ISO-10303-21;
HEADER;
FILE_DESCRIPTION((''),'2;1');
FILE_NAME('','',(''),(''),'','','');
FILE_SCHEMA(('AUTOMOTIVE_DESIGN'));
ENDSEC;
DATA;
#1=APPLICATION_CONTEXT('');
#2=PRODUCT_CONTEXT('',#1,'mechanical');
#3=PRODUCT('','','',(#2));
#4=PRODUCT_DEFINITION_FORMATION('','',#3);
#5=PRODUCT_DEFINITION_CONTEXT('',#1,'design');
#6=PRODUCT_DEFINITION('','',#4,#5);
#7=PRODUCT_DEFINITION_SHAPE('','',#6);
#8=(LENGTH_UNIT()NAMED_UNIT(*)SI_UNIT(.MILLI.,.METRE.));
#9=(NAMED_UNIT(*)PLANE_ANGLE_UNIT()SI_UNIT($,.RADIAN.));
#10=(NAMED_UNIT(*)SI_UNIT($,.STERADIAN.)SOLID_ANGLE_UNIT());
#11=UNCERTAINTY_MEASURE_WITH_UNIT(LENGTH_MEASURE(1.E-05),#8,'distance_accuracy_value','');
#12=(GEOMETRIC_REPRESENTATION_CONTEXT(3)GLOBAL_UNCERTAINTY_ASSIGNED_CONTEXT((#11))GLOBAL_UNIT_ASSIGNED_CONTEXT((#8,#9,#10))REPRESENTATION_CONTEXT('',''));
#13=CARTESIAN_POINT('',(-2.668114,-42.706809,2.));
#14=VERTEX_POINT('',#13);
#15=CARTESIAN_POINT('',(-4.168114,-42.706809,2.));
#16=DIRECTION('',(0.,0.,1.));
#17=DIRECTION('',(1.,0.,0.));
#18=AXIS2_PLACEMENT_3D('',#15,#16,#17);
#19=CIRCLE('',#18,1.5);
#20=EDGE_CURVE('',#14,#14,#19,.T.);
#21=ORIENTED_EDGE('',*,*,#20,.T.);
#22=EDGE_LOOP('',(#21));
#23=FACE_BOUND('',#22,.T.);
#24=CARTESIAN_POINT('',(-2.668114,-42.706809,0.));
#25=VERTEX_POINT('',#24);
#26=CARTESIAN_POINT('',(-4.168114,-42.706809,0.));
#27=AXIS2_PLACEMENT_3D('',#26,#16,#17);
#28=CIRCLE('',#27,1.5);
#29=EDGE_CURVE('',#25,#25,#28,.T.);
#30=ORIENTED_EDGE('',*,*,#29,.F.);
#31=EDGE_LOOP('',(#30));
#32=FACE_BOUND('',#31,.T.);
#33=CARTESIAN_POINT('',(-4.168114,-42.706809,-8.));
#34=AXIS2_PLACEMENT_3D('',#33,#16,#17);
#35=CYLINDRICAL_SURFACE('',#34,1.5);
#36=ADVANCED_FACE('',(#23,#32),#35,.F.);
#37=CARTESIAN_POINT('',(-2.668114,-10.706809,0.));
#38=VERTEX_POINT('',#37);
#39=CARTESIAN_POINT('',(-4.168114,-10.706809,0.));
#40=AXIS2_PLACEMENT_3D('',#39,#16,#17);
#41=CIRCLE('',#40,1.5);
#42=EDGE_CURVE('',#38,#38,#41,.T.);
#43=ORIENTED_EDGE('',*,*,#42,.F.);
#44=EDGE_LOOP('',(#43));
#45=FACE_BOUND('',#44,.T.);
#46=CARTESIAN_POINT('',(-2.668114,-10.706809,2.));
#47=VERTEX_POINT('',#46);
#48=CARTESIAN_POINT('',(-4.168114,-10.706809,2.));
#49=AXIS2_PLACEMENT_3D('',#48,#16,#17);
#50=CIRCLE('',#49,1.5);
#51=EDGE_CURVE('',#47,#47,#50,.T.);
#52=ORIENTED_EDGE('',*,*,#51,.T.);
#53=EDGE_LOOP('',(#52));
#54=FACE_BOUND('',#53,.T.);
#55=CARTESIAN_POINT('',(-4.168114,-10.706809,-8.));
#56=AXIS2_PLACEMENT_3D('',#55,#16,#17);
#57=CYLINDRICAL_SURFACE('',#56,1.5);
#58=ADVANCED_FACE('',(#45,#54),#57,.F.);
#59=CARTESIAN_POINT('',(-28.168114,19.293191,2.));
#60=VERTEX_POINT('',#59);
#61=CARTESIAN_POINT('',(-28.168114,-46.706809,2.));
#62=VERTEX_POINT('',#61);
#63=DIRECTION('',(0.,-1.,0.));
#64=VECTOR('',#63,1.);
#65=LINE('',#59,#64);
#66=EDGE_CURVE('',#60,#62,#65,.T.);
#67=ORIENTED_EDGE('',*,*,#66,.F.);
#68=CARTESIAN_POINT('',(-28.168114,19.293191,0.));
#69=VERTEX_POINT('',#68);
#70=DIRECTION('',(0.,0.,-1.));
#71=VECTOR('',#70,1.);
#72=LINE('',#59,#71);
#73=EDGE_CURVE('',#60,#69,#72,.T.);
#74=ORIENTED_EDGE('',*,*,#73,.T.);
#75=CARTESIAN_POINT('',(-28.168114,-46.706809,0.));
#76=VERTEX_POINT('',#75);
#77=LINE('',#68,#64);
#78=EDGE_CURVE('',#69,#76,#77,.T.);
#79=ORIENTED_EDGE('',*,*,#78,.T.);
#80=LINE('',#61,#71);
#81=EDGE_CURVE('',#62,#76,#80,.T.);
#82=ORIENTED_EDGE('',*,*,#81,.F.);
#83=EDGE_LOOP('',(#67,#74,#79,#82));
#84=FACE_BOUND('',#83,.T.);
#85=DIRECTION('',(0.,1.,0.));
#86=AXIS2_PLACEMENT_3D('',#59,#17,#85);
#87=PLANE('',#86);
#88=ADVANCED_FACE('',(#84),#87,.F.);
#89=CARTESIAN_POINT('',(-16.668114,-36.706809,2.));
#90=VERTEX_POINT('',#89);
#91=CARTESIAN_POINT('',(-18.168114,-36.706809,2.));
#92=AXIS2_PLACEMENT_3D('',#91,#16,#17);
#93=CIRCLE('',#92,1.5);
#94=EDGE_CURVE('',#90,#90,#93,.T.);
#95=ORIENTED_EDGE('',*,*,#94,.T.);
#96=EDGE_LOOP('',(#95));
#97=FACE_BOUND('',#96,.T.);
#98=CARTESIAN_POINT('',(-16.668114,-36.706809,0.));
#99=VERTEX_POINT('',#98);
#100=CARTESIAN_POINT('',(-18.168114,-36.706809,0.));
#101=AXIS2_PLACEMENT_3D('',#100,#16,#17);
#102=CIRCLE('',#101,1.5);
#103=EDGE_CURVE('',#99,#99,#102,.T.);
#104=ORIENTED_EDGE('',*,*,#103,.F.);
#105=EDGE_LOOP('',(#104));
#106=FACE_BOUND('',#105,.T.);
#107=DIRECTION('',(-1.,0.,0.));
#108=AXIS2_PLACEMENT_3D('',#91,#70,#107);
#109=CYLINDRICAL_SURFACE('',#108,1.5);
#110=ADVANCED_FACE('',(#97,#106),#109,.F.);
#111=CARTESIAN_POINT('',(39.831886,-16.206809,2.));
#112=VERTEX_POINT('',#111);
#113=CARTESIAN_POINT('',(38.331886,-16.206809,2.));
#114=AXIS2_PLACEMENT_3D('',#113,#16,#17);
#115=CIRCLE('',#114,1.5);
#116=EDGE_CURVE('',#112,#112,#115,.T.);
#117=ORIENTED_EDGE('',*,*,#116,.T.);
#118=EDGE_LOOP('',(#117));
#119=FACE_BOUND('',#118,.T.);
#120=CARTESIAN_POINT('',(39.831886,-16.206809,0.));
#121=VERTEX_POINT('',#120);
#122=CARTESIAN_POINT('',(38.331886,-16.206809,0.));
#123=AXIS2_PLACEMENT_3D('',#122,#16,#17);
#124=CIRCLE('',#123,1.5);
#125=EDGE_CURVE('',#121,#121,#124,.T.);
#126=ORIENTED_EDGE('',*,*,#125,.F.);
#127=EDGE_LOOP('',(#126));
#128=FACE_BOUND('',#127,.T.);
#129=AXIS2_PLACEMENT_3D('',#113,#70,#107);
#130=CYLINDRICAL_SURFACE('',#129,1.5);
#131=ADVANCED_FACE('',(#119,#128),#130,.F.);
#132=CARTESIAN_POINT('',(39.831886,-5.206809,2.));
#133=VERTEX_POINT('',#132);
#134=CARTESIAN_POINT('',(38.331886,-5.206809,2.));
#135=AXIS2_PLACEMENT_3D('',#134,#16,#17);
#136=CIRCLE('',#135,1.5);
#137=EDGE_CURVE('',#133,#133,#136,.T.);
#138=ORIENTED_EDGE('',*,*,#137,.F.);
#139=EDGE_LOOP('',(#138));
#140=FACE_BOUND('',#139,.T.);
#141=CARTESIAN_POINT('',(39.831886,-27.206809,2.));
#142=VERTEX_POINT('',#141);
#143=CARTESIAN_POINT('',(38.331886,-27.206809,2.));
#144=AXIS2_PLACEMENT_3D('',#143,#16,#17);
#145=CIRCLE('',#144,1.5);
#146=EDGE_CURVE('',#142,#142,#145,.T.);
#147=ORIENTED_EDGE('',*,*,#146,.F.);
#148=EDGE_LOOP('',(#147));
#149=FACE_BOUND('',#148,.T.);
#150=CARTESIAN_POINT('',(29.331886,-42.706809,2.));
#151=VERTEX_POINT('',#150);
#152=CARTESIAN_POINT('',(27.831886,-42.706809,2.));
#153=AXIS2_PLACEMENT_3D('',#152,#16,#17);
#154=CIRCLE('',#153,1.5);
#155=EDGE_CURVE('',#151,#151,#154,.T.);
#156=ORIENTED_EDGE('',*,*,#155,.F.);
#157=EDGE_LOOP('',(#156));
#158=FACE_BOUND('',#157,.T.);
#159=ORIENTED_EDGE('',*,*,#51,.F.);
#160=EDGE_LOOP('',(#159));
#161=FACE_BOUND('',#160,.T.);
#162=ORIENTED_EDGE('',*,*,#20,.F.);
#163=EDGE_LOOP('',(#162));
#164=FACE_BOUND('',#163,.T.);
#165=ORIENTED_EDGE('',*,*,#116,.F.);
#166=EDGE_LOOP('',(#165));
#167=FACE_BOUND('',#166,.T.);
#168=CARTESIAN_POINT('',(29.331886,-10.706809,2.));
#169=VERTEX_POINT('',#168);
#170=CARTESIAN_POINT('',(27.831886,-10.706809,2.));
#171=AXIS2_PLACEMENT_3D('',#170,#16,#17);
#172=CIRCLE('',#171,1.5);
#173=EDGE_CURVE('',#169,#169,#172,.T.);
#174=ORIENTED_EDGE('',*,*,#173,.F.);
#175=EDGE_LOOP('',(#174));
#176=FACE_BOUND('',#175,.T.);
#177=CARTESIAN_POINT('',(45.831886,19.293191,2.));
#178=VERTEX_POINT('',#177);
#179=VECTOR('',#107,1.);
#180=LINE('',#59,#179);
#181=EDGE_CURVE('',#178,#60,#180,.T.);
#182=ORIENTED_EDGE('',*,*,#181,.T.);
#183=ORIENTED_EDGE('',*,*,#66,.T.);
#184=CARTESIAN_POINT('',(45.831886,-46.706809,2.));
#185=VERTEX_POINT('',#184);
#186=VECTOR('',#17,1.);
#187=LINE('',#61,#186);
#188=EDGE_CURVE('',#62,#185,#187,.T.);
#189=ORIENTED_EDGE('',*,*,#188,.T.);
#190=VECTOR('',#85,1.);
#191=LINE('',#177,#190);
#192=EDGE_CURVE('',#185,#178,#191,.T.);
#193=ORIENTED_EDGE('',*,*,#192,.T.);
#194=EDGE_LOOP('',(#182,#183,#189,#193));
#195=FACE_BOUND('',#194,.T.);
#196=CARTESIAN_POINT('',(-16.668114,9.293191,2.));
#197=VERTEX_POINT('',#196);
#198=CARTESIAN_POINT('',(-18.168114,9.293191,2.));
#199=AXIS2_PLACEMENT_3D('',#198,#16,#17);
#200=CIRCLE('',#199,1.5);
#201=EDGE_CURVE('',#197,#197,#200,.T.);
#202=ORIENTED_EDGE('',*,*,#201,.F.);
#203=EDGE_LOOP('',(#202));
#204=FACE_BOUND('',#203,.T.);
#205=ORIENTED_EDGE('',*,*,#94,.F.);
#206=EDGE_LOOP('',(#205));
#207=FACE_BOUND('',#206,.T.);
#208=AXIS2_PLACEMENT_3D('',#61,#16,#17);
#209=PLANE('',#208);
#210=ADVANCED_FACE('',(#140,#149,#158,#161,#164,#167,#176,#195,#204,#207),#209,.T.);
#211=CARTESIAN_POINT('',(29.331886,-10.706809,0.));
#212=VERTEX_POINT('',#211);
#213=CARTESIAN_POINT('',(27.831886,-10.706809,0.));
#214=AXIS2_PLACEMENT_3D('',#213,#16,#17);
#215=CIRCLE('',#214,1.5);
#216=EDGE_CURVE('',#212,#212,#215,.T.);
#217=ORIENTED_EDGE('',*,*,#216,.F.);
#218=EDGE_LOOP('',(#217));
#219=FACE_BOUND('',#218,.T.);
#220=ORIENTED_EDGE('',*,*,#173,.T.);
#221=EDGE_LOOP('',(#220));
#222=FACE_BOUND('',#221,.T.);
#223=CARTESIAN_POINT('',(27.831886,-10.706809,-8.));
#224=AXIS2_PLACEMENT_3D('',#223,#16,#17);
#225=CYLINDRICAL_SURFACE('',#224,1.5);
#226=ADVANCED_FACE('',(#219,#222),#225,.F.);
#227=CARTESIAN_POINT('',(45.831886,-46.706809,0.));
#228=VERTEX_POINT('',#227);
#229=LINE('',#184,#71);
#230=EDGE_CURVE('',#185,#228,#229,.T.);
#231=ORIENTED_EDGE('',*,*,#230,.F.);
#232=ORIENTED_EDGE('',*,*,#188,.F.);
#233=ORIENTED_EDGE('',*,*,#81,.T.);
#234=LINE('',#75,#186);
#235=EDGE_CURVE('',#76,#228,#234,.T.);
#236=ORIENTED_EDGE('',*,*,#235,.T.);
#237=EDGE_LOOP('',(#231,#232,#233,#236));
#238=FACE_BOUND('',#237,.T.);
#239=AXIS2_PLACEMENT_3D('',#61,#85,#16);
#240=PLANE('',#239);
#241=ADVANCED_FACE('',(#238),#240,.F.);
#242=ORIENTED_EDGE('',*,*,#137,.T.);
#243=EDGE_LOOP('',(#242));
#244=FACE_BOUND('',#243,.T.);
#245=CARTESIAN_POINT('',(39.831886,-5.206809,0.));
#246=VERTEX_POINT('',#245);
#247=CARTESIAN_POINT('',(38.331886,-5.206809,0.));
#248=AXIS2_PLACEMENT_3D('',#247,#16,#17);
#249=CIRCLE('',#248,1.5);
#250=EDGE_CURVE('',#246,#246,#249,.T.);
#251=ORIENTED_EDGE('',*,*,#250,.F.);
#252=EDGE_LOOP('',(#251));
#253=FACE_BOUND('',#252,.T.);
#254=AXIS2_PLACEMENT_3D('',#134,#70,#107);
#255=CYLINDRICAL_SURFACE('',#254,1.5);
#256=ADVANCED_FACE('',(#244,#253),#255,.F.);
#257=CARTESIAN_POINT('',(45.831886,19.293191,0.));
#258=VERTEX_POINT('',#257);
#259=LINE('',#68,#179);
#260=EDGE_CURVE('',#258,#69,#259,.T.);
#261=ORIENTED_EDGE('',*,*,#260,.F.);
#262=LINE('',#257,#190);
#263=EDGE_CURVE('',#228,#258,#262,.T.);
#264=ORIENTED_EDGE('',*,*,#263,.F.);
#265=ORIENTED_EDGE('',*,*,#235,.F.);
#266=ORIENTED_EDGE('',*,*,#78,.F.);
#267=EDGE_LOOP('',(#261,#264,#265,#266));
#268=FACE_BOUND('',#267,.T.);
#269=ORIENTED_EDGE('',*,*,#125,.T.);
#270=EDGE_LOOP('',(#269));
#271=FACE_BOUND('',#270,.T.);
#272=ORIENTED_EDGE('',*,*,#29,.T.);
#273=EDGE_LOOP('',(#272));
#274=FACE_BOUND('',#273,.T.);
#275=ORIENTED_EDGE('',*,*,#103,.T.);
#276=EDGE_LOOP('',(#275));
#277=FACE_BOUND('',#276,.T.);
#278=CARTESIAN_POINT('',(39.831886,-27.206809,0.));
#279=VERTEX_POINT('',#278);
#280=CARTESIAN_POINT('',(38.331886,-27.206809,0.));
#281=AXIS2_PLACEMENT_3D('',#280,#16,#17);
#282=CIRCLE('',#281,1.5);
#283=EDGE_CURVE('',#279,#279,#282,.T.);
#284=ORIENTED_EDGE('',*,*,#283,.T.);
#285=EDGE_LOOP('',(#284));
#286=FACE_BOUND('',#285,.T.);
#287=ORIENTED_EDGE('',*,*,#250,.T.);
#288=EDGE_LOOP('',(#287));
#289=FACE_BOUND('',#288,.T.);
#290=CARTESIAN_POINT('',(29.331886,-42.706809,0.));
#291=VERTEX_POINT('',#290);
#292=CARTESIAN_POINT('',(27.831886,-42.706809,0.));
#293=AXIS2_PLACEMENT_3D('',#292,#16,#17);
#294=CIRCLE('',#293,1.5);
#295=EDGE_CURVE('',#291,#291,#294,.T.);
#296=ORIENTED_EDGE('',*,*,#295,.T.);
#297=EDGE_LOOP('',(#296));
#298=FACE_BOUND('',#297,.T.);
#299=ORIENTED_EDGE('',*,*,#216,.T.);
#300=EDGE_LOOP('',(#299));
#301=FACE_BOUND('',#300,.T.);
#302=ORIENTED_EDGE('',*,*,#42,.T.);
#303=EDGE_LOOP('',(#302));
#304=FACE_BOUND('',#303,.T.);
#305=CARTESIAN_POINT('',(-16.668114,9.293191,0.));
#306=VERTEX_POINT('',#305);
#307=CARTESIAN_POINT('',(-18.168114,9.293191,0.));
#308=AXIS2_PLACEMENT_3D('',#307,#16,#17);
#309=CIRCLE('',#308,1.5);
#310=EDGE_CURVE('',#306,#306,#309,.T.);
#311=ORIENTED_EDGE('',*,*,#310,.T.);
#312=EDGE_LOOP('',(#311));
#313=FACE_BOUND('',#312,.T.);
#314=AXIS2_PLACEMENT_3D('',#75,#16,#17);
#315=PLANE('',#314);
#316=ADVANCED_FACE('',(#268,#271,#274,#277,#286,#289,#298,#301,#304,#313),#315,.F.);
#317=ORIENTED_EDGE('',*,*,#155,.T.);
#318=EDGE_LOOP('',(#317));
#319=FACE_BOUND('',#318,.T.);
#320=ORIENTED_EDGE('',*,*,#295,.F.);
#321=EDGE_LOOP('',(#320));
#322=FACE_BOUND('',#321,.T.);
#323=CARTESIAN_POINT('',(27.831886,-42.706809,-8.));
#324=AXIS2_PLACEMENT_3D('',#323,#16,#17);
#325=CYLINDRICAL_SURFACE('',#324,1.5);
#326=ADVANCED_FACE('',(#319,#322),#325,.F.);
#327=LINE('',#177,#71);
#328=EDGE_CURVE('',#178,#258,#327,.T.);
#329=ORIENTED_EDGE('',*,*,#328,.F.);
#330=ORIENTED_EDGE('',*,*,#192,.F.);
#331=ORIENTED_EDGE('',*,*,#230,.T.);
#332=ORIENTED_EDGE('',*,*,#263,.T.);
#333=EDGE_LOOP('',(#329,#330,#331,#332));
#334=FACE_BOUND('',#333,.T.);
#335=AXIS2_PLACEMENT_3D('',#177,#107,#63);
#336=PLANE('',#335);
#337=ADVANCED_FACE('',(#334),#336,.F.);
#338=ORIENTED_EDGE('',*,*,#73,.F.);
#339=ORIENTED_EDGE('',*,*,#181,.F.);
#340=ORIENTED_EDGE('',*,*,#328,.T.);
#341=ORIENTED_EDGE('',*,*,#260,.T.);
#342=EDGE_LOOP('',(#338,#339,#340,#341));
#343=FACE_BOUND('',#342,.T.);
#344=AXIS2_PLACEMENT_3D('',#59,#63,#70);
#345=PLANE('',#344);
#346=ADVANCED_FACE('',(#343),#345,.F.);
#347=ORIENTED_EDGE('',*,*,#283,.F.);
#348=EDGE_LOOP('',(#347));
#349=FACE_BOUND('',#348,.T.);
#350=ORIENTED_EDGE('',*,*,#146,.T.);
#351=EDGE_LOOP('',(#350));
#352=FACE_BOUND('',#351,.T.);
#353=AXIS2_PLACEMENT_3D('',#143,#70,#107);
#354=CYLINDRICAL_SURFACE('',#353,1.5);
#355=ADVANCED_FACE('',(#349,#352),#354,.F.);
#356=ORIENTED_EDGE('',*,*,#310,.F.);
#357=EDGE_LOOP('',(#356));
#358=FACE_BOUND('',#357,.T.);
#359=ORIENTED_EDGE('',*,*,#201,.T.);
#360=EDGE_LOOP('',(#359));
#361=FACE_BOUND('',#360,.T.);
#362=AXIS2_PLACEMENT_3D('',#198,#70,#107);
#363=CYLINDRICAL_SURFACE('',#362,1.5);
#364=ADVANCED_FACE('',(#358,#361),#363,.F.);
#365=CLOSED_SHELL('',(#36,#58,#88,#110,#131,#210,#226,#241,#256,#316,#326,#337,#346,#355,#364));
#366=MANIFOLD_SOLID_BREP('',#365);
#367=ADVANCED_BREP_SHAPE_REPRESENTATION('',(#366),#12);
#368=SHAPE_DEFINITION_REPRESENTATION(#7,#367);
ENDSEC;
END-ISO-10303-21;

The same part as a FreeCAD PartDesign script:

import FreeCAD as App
import Part
import Sketcher
from FreeCAD import Vector
Q = App.Units.Quantity

doc = App.newDocument("Part")
body = doc.addObject("PartDesign::Body", "Body")

sketch1 = doc.addObject("Sketcher::SketchObject", "Sketch")
body.addObject(sketch1)
sketch1.AttachmentSupport = (doc.XY_Plane, [""])
sketch1.MapMode = "FlatFace"
sketch1.addGeometry([
    Part.LineSegment(Vector(-28.168114, 19.293191, 0), Vector(-28.168114, -46.706809, 0)),
    Part.LineSegment(Vector(-28.168114, -46.706809, 0), Vector(45.831886, -46.706809, 0)),
    Part.LineSegment(Vector(45.831886, -46.706809, 0), Vector(45.831886, 19.293191, 0)),
    Part.LineSegment(Vector(45.831886, 19.293191, 0), Vector(-28.168114, 19.293191, 0)),
    Part.Circle(Vector(-18.168114, -36.706809, 0), Vector(0, 0, 1), 1.5),
    Part.Circle(Vector(38.331886, -27.206809, 0), Vector(0, 0, 1), 1.5),
    Part.Circle(Vector(38.331886, -16.206809, 0), Vector(0, 0, 1), 1.5),
    Part.Circle(Vector(-18.168114, 9.293191, 0), Vector(0, 0, 1), 1.5),
    Part.Circle(Vector(38.331886, -5.206809, 0), Vector(0, 0, 1), 1.5),
], False)
sketch1.addConstraint([
    Sketcher.Constraint("Coincident", 0, 2, 1, 1),
    Sketcher.Constraint("Coincident", 1, 2, 2, 1),
    Sketcher.Constraint("Coincident", 2, 2, 3, 1),
    Sketcher.Constraint("Coincident", 3, 2, 0, 1),
    Sketcher.Constraint("Vertical", 0),
    Sketcher.Constraint("Horizontal", 1),
    Sketcher.Constraint("Vertical", 2),
    Sketcher.Constraint("Horizontal", 3),
    Sketcher.Constraint("Equal", 4, 5),
    Sketcher.Constraint("Equal", 5, 6),
    Sketcher.Constraint("Equal", 6, 7),
    Sketcher.Constraint("Equal", 7, 8),
    Sketcher.Constraint("Vertical", 5, 3, 6, 3),
    Sketcher.Constraint("Vertical", 4, 3, 7, 3),
    Sketcher.Constraint("Vertical", 6, 3, 8, 3),
    Sketcher.Constraint("Diameter", 4, Q("3 mm")),
    Sketcher.Constraint("DistanceX", 1, 1, 1, 2, Q("74 mm")),
    Sketcher.Constraint("DistanceY", 0, 2, 0, 1, Q("66 mm")),
    Sketcher.Constraint("DistanceY", 5, 3, 6, 3, Q("11 mm")),
    Sketcher.Constraint("DistanceY", 4, 3, 7, 3, Q("46 mm")),
    Sketcher.Constraint("DistanceY", 6, 3, 8, 3, Q("11 mm")),
    Sketcher.Constraint("DistanceX", 0, 2, 4, 3, Q("10 mm")),
    Sketcher.Constraint("DistanceY", 0, 2, 4, 3, Q("10 mm")),
    Sketcher.Constraint("DistanceX", 4, 3, 5, 3, Q("56.5 mm")),
    Sketcher.Constraint("DistanceY", 4, 3, 5, 3, Q("9.5 mm")),
    Sketcher.Constraint("DistanceY", 4, 3, -1, 1, Q("36.706809 mm")),
    Sketcher.Constraint("DistanceX", 4, 3, -1, 1, Q("18.168114 mm")),
])
pad1 = doc.addObject("PartDesign::Pad", "Pad")
body.addObject(pad1)
pad1.Profile = sketch1
pad1.Length = 2

sketch2 = doc.addObject("Sketcher::SketchObject", "Sketch001")
body.addObject(sketch2)
sketch2.AttachmentSupport = (doc.XY_Plane, [""])
sketch2.MapMode = "FlatFace"
sketch2.AttachmentOffset = App.Placement(Vector(0, 0, 2), App.Rotation())
sketch2.addGeometry([
    Part.Circle(Vector(27.831886, -10.706809, 0), Vector(0, 0, 1), 1.5),
    Part.Circle(Vector(-4.168114, -10.706809, 0), Vector(0, 0, 1), 1.5),
    Part.Circle(Vector(-4.168114, -42.706809, 0), Vector(0, 0, 1), 1.5),
    Part.Circle(Vector(27.831886, -42.706809, 0), Vector(0, 0, 1), 1.5),
], False)
sketch2.addConstraint([
    Sketcher.Constraint("Equal", 0, 1),
    Sketcher.Constraint("Equal", 1, 2),
    Sketcher.Constraint("Equal", 2, 3),
    Sketcher.Constraint("Horizontal", 0, 3, 1, 3),
    Sketcher.Constraint("Horizontal", 2, 3, 3, 3),
    Sketcher.Constraint("Vertical", 1, 3, 2, 3),
    Sketcher.Constraint("Vertical", 0, 3, 3, 3),
    Sketcher.Constraint("Diameter", 0, Q("3 mm")),
    Sketcher.Constraint("DistanceX", 1, 3, 0, 3, Q("32 mm")),
    Sketcher.Constraint("DistanceY", 2, 3, 1, 3, Q("32 mm")),
    Sketcher.Constraint("DistanceY", 0, 3, -1, 1, Q("10.706809 mm")),
    Sketcher.Constraint("DistanceX", -1, 1, 0, 3, Q("27.831886 mm")),
])
pocket1 = doc.addObject("PartDesign::Pocket", "Pocket")
body.addObject(pocket1)
pocket1.Profile = sketch2
pocket1.Length = 10

doc.recompute()
